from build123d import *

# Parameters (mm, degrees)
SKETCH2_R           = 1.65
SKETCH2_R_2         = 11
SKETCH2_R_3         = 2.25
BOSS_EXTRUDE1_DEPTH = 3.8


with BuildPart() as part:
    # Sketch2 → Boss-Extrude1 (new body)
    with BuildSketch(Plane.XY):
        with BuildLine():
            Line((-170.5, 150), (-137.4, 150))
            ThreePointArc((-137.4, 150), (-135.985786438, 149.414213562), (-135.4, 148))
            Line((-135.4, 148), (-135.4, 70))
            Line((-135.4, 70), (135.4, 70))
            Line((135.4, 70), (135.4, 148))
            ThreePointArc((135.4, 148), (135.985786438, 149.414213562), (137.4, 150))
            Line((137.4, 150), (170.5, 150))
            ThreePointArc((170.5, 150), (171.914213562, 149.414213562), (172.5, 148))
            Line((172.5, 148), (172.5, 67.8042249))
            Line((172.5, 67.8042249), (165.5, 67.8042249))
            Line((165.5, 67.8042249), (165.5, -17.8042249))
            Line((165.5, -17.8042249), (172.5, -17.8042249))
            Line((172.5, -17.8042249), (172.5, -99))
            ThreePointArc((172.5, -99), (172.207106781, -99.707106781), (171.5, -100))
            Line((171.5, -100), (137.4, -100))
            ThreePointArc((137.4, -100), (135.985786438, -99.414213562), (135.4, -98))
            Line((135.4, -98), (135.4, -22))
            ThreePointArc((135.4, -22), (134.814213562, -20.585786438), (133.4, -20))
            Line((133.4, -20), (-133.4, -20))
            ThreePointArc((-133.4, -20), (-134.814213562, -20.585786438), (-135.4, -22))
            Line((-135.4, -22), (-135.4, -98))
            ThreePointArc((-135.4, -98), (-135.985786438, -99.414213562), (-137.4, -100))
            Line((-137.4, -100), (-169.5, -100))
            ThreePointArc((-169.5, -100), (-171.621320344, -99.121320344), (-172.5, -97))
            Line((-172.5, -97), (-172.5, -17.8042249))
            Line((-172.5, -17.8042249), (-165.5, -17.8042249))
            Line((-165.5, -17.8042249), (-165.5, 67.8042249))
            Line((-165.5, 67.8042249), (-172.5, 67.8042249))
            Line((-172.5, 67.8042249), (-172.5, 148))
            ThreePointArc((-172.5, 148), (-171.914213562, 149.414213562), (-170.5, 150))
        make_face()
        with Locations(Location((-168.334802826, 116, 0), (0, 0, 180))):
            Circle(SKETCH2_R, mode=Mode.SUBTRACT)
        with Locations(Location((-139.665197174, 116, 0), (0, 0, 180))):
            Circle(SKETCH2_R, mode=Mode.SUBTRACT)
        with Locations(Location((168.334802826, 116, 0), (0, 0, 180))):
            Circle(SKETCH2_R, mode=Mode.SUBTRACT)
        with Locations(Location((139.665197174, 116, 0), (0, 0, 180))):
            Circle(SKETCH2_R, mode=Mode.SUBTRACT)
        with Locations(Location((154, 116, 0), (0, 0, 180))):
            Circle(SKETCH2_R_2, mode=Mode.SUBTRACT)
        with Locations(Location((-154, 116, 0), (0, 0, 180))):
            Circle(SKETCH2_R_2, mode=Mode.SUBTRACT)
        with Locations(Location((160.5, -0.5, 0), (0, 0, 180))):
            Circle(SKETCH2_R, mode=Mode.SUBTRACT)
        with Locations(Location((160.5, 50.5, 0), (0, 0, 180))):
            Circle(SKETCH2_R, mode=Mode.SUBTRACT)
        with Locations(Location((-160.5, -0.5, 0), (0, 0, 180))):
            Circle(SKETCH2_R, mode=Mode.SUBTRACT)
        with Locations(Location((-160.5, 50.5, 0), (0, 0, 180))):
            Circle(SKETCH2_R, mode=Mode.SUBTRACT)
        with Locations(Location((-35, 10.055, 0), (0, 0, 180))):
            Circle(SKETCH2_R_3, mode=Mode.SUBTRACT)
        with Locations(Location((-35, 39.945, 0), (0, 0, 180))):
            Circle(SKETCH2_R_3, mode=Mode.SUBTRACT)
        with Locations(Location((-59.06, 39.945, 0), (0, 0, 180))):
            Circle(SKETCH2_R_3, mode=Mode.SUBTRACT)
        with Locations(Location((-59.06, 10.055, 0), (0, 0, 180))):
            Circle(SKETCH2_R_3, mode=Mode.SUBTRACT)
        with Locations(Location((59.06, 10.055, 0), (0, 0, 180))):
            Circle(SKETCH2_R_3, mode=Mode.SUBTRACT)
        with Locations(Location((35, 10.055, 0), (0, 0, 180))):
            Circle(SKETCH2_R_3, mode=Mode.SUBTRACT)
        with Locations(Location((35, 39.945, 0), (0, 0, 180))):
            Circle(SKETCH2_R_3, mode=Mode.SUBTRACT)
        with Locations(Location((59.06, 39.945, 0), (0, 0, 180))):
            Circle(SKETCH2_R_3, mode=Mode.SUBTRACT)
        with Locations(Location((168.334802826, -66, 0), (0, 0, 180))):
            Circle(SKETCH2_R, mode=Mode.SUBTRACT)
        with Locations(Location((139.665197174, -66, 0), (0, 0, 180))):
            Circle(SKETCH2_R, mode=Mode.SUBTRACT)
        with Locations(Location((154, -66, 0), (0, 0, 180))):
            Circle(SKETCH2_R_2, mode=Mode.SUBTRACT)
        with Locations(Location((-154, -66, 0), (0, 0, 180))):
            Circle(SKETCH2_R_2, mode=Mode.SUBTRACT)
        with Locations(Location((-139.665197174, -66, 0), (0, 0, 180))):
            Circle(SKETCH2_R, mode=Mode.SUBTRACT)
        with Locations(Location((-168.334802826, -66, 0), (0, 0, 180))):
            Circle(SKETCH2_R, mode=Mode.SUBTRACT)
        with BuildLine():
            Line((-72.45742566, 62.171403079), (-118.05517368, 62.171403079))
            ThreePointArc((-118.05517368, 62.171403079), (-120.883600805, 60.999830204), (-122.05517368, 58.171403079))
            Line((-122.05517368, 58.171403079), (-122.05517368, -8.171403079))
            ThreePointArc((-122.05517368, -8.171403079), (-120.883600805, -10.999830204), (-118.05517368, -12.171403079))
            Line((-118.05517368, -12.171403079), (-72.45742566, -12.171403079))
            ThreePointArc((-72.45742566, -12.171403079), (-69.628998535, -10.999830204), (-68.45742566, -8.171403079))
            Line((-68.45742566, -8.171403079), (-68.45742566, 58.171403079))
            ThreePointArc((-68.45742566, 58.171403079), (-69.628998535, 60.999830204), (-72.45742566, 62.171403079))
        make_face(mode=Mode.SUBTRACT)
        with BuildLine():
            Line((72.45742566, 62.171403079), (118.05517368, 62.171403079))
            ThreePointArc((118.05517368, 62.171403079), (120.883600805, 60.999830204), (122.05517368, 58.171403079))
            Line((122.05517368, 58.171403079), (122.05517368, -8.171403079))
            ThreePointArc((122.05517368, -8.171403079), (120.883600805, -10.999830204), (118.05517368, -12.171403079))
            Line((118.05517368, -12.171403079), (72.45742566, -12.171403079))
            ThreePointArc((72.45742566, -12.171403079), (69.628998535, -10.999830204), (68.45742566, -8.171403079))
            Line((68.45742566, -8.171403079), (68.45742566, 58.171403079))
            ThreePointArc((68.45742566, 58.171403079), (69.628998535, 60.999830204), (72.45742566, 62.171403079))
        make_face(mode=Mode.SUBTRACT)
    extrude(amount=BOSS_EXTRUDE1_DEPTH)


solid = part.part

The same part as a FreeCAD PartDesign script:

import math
import FreeCAD as App
import Part
import Sketcher

doc = App.newDocument("Part")
body = doc.addObject("PartDesign::Body", "Body")

# Sketch on XY plane
sketch1 = body.newObject("Sketcher::SketchObject", "Sketch")
sketch1.AttachmentSupport = (doc.getObject("XY_Plane"), [""])
sketch1.MapMode = "FlatFace"
sketch1.addGeometry([
    Part.LineSegment(App.Vector(-137.4, 150, 0), App.Vector(-170.5, 150, 0)),  # 0
    Part.ArcOfCircle(Part.Circle(App.Vector(-170.5, 148, 0), App.Vector(0, 0, 1), 2), math.radians(90), math.radians(180)),  # 1
    Part.LineSegment(App.Vector(-172.5, 148, 0), App.Vector(-172.5, 67.804225, 0)),  # 2
    Part.LineSegment(App.Vector(-172.5, 67.804225, 0), App.Vector(-165.5, 67.804225, 0)),  # 3
    Part.LineSegment(App.Vector(-165.5, 67.804225, 0), App.Vector(-165.5, -17.804225, 0)),  # 4
    Part.LineSegment(App.Vector(-165.5, -17.804225, 0), App.Vector(-172.5, -17.804225, 0)),  # 5
    Part.LineSegment(App.Vector(-172.5, -17.804225, 0), App.Vector(-172.5, -97, 0)),  # 6
    Part.ArcOfCircle(Part.Circle(App.Vector(-169.5, -97, 0), App.Vector(0, 0, 1), 3), math.radians(180), math.radians(270)),  # 7
    Part.LineSegment(App.Vector(-169.5, -100, 0), App.Vector(-137.4, -100, 0)),  # 8
    Part.ArcOfCircle(Part.Circle(App.Vector(-137.4, -98, 0), App.Vector(0, 0, 1), 2), math.radians(-90), math.radians(0)),  # 9
    Part.LineSegment(App.Vector(-135.4, -98, 0), App.Vector(-135.4, -22, 0)),  # 10
    Part.ArcOfCircle(Part.Circle(App.Vector(-133.4, -22, 0), App.Vector(0, 0, 1), 2), math.radians(90), math.radians(180)),  # 11
    Part.LineSegment(App.Vector(-133.4, -20, 0), App.Vector(133.4, -20, 0)),  # 12
    Part.ArcOfCircle(Part.Circle(App.Vector(133.4, -22, 0), App.Vector(0, 0, 1), 2), math.radians(0), math.radians(90)),  # 13
    Part.LineSegment(App.Vector(135.4, -22, 0), App.Vector(135.4, -98, 0)),  # 14
    Part.ArcOfCircle(Part.Circle(App.Vector(137.4, -98, 0), App.Vector(0, 0, 1), 2), math.radians(-180), math.radians(-90)),  # 15
    Part.LineSegment(App.Vector(137.4, -100, 0), App.Vector(171.5, -100, 0)),  # 16
    Part.ArcOfCircle(Part.Circle(App.Vector(171.5, -99, 0), App.Vector(0, 0, 1), 1), math.radians(-90), math.radians(0)),  # 17
    Part.LineSegment(App.Vector(172.5, -99, 0), App.Vector(172.5, -17.804225, 0)),  # 18
    Part.LineSegment(App.Vector(172.5, -17.804225, 0), App.Vector(165.5, -17.804225, 0)),  # 19
    Part.LineSegment(App.Vector(165.5, -17.804225, 0), App.Vector(165.5, 67.804225, 0)),  # 20
    Part.LineSegment(App.Vector(165.5, 67.804225, 0), App.Vector(172.5, 67.804225, 0)),  # 21
    Part.LineSegment(App.Vector(172.5, 67.804225, 0), App.Vector(172.5, 148, 0)),  # 22
    Part.ArcOfCircle(Part.Circle(App.Vector(170.5, 148, 0), App.Vector(0, 0, 1), 2), math.radians(0), math.radians(90)),  # 23
    Part.LineSegment(App.Vector(170.5, 150, 0), App.Vector(137.4, 150, 0)),  # 24
    Part.ArcOfCircle(Part.Circle(App.Vector(137.4, 148, 0), App.Vector(0, 0, 1), 2), math.radians(90), math.radians(180)),  # 25
    Part.LineSegment(App.Vector(135.4, 148, 0), App.Vector(135.4, 70, 0)),  # 26
    Part.LineSegment(App.Vector(135.4, 70, 0), App.Vector(-135.4, 70, 0)),  # 27
    Part.LineSegment(App.Vector(-135.4, 70, 0), App.Vector(-135.4, 148, 0)),  # 28
    Part.ArcOfCircle(Part.Circle(App.Vector(-137.4, 148, 0), App.Vector(0, 0, 1), 2), math.radians(0), math.radians(90)),  # 29
    Part.Circle(App.Vector(168.334803, -66, 0), App.Vector(0, 0, 1), 1.65),  # 30
    Part.Circle(App.Vector(154, -66, 0), App.Vector(0, 0, 1), 11),  # 31
    Part.Circle(App.Vector(139.665197, -66, 0), App.Vector(0, 0, 1), 1.65),  # 32
    Part.Circle(App.Vector(160.5, -0.5, 0), App.Vector(0, 0, 1), 1.65),  # 33
    Part.Circle(App.Vector(59.06, 10.055, 0), App.Vector(0, 0, 1), 2.25),  # 34
    Part.Circle(App.Vector(35, 10.055, 0), App.Vector(0, 0, 1), 2.25),  # 35
    Part.Circle(App.Vector(-139.665197, -66, 0), App.Vector(0, 0, 1), 1.65),  # 36
    Part.Circle(App.Vector(-154, -66, 0), App.Vector(0, 0, 1), 11),  # 37
    Part.Circle(App.Vector(-168.334803, -66, 0), App.Vector(0, 0, 1), 1.65),  # 38
    Part.Circle(App.Vector(-35, 10.055, 0), App.Vector(0, 0, 1), 2.25),  # 39
    Part.Circle(App.Vector(-59.06, 10.055, 0), App.Vector(0, 0, 1), 2.25),  # 40
    Part.Circle(App.Vector(-160.5, -0.5, 0), App.Vector(0, 0, 1), 1.65),  # 41
    Part.LineSegment(App.Vector(72.457426, 62.171403, 0), App.Vector(118.055174, 62.171403, 0)),  # 42
    Part.ArcOfCircle(Part.Circle(App.Vector(118.055174, 58.171403, 0), App.Vector(0, 0, 1), 4), math.radians(0), math.radians(90)),  # 43
    Part.LineSegment(App.Vector(122.055174, 58.171403, 0), App.Vector(122.055174, -8.171403, 0)),  # 44
    Part.ArcOfCircle(Part.Circle(App.Vector(118.055174, -8.171403, 0), App.Vector(0, 0, 1), 4), math.radians(-90), math.radians(0)),  # 45
    Part.LineSegment(App.Vector(118.055174, -12.171403, 0), App.Vector(72.457426, -12.171403, 0)),  # 46
    Part.ArcOfCircle(Part.Circle(App.Vector(72.457426, -8.171403, 0), App.Vector(0, 0, 1), 4), math.radians(180), math.radians(270)),  # 47
    Part.LineSegment(App.Vector(68.457426, -8.171403, 0), App.Vector(68.457426, 58.171403, 0)),  # 48
    Part.ArcOfCircle(Part.Circle(App.Vector(72.457426, 58.171403, 0), App.Vector(0, 0, 1), 4), math.radians(90), math.radians(180)),  # 49
    Part.Circle(App.Vector(160.5, 50.5, 0), App.Vector(0, 0, 1), 1.65),  # 50
    Part.Circle(App.Vector(59.06, 39.945, 0), App.Vector(0, 0, 1), 2.25),  # 51
    Part.Circle(App.Vector(35, 39.945, 0), App.Vector(0, 0, 1), 2.25),  # 52
    Part.Circle(App.Vector(168.334803, 116, 0), App.Vector(0, 0, 1), 1.65),  # 53
    Part.Circle(App.Vector(154, 116, 0), App.Vector(0, 0, 1), 11),  # 54
    Part.Circle(App.Vector(139.665197, 116, 0), App.Vector(0, 0, 1), 1.65),  # 55
    Part.Circle(App.Vector(-35, 39.945, 0), App.Vector(0, 0, 1), 2.25),  # 56
    Part.Circle(App.Vector(-59.06, 39.945, 0), App.Vector(0, 0, 1), 2.25),  # 57
    Part.ArcOfCircle(Part.Circle(App.Vector(-72.457426, 58.171403, 0), App.Vector(0, 0, 1), 4), math.radians(0), math.radians(90)),  # 58
    Part.LineSegment(App.Vector(-68.457426, 58.171403, 0), App.Vector(-68.457426, -8.171403, 0)),  # 59
    Part.ArcOfCircle(Part.Circle(App.Vector(-72.457426, -8.171403, 0), App.Vector(0, 0, 1), 4), math.radians(-90), math.radians(0)),  # 60
    Part.LineSegment(App.Vector(-72.457426, -12.171403, 0), App.Vector(-118.055174, -12.171403, 0)),  # 61
    Part.ArcOfCircle(Part.Circle(App.Vector(-118.055174, -8.171403, 0), App.Vector(0, 0, 1), 4), math.radians(180), math.radians(270)),  # 62
    Part.LineSegment(App.Vector(-122.055174, -8.171403, 0), App.Vector(-122.055174, 58.171403, 0)),  # 63
    Part.ArcOfCircle(Part.Circle(App.Vector(-118.055174, 58.171403, 0), App.Vector(0, 0, 1), 4), math.radians(90), math.radians(180)),  # 64
    Part.LineSegment(App.Vector(-118.055174, 62.171403, 0), App.Vector(-72.457426, 62.171403, 0)),  # 65
    Part.Circle(App.Vector(-160.5, 50.5, 0), App.Vector(0, 0, 1), 1.65),  # 66
    Part.Circle(App.Vector(-139.665197, 116, 0), App.Vector(0, 0, 1), 1.65),  # 67
    Part.Circle(App.Vector(-154, 116, 0), App.Vector(0, 0, 1), 11),  # 68
    Part.Circle(App.Vector(-168.334803, 116, 0), App.Vector(0, 0, 1), 1.65),  # 69
], False)
sketch1.addConstraint([
    Sketcher.Constraint("Tangent", 0, 2, 1, 1),
    Sketcher.Constraint("Tangent", 1, 2, 2, 1),
    Sketcher.Constraint("Coincident", 2, 2, 3, 1),
    Sketcher.Constraint("Coincident", 3, 2, 4, 1),
    Sketcher.Constraint("Coincident", 4, 2, 5, 1),
    Sketcher.Constraint("Coincident", 5, 2, 6, 1),
    Sketcher.Constraint("Tangent", 6, 2, 7, 1),
    Sketcher.Constraint("Tangent", 7, 2, 8, 1),
    Sketcher.Constraint("Tangent", 8, 2, 9, 1),
    Sketcher.Constraint("Tangent", 9, 2, 10, 1),
    Sketcher.Constraint("Tangent", 10, 2, 11, 2),
    Sketcher.Constraint("Tangent", 11, 1, 12, 1),
    Sketcher.Constraint("Tangent", 12, 2, 13, 2),
    Sketcher.Constraint("Tangent", 13, 1, 14, 1),
    Sketcher.Constraint("Tangent", 14, 2, 15, 1),
    Sketcher.Constraint("Tangent", 15, 2, 16, 1),
    Sketcher.Constraint("Tangent", 16, 2, 17, 1),
    Sketcher.Constraint("Tangent", 17, 2, 18, 1),
    Sketcher.Constraint("Coincident", 18, 2, 19, 1),
    Sketcher.Constraint("Coincident", 19, 2, 20, 1),
    Sketcher.Constraint("Coincident", 20, 2, 21, 1),
    Sketcher.Constraint("Coincident", 21, 2, 22, 1),
    Sketcher.Constraint("Tangent", 22, 2, 23, 1),
    Sketcher.Constraint("Tangent", 23, 2, 24, 1),
    Sketcher.Constraint("Tangent", 24, 2, 25, 1),
    Sketcher.Constraint("Tangent", 25, 2, 26, 1),
    Sketcher.Constraint("Coincident", 26, 2, 27, 1),
    Sketcher.Constraint("Coincident", 27, 2, 28, 1),
    Sketcher.Constraint("Tangent", 28, 2, 29, 1),
    Sketcher.Constraint("Tangent", 29, 2, 0, 1),
    Sketcher.Constraint("Tangent", 42, 2, 43, 2),
    Sketcher.Constraint("Tangent", 43, 1, 44, 1),
    Sketcher.Constraint("Tangent", 44, 2, 45, 2),
    Sketcher.Constraint("Tangent", 45, 1, 46, 1),
    Sketcher.Constraint("Tangent", 46, 2, 47, 2),
    Sketcher.Constraint("Tangent", 47, 1, 48, 1),
    Sketcher.Constraint("Tangent", 48, 2, 49, 2),
    Sketcher.Constraint("Tangent", 49, 1, 42, 1),
    Sketcher.Constraint("Tangent", 58, 1, 59, 1),
    Sketcher.Constraint("Tangent", 59, 2, 60, 2),
    Sketcher.Constraint("Tangent", 60, 1, 61, 1),
    Sketcher.Constraint("Tangent", 61, 2, 62, 2),
    Sketcher.Constraint("Tangent", 62, 1, 63, 1),
    Sketcher.Constraint("Tangent", 63, 2, 64, 2),
    Sketcher.Constraint("Tangent", 64, 1, 65, 1),
    Sketcher.Constraint("Tangent", 65, 2, 58, 2),
    Sketcher.Constraint("Horizontal", 0),
    Sketcher.Constraint("Vertical", 2),
    Sketcher.Constraint("Horizontal", 3),
    Sketcher.Constraint("Vertical", 4),
    Sketcher.Constraint("Horizontal", 5),
    Sketcher.Constraint("Vertical", 6),
    Sketcher.Constraint("Horizontal", 8),
    Sketcher.Constraint("Vertical", 10),
    Sketcher.Constraint("Horizontal", 12),
    Sketcher.Constraint("Vertical", 14),
    Sketcher.Constraint("Horizontal", 16),
    Sketcher.Constraint("Vertical", 18),
    Sketcher.Constraint("Horizontal", 19),
    Sketcher.Constraint("Vertical", 20),
    Sketcher.Constraint("Horizontal", 21),
    Sketcher.Constraint("Vertical", 22),
    Sketcher.Constraint("Horizontal", 24),
    Sketcher.Constraint("Vertical", 26),
    Sketcher.Constraint("Horizontal", 27),
    Sketcher.Constraint("Vertical", 28),
    Sketcher.Constraint("Horizontal", 42),
    Sketcher.Constraint("Vertical", 44),
    Sketcher.Constraint("Horizontal", 46),
    Sketcher.Constraint("Vertical", 48),
    Sketcher.Constraint("Vertical", 59),
    Sketcher.Constraint("Horizontal", 61),
    Sketcher.Constraint("Vertical", 63),
    Sketcher.Constraint("Horizontal", 65),
    Sketcher.Constraint("Equal", 1, 9),
    Sketcher.Constraint("Equal", 9, 11),
    Sketcher.Constraint("Equal", 11, 13),
    Sketcher.Constraint("Equal", 13, 15),
    Sketcher.Constraint("Equal", 15, 23),
    Sketcher.Constraint("Equal", 23, 25),
    Sketcher.Constraint("Equal", 25, 29),
    Sketcher.Constraint("Equal", 30, 32),
    Sketcher.Constraint("Equal", 32, 33),
    Sketcher.Constraint("Equal", 34, 35),
    Sketcher.Constraint("Equal", 33, 36),
    Sketcher.Constraint("Equal", 31, 37),
    Sketcher.Constraint("Equal", 36, 38),
    Sketcher.Constraint("Equal", 35, 39),
    Sketcher.Constraint("Equal", 39, 40),
    Sketcher.Constraint("Equal", 38, 41),
    Sketcher.Constraint("Equal", 43, 45),
    Sketcher.Constraint("Equal", 45, 47),
    Sketcher.Constraint("Equal", 47, 49),
    Sketcher.Constraint("Equal", 41, 50),
    Sketcher.Constraint("Equal", 40, 51),
    Sketcher.Constraint("Equal", 51, 52),
    Sketcher.Constraint("Equal", 50, 53),
    Sketcher.Constraint("Equal", 37, 54),
    Sketcher.Constraint("Equal", 53, 55),
    Sketcher.Constraint("Equal", 52, 56),
    Sketcher.Constraint("Equal", 56, 57),
    Sketcher.Constraint("Equal", 49, 58),
    Sketcher.Constraint("Equal", 58, 60),
    Sketcher.Constraint("Equal", 60, 62),
    Sketcher.Constraint("Equal", 62, 64),
    Sketcher.Constraint("Equal", 55, 66),
    Sketcher.Constraint("Equal", 66, 67),
    Sketcher.Constraint("Equal", 54, 68),
    Sketcher.Constraint("Equal", 67, 69),
    Sketcher.Constraint("Symmetric", 9, 3, 15, 3, -2),
    Sketcher.Constraint("Symmetric", 1, 3, 23, 3, -2),
    Sketcher.Constraint("Symmetric", 32, 3, 36, 3, -2),
    Sketcher.Constraint("Symmetric", 31, 3, 37, 3, -2),
    Sketcher.Constraint("Symmetric", 30, 3, 38, 3, -2),
    Sketcher.Constraint("Symmetric", 35, 3, 39, 3, -2),
    Sketcher.Constraint("Symmetric", 34, 3, 40, 3, -2),
    Sketcher.Constraint("Symmetric", 33, 3, 41, 3, -2),
    Sketcher.Constraint("Symmetric", 52, 3, 56, 3, -2),
    Sketcher.Constraint("Symmetric", 51, 3, 57, 3, -2),
    Sketcher.Constraint("Symmetric", 49, 3, 58, 3, -2),
    Sketcher.Constraint("Symmetric", 45, 3, 62, 3, -2),
    Sketcher.Constraint("Symmetric", 50, 3, 66, 3, -2),
    Sketcher.Constraint("Symmetric", 55, 3, 67, 3, -2),
    Sketcher.Constraint("Symmetric", 54, 3, 68, 3, -2),
    Sketcher.Constraint("Symmetric", 53, 3, 69, 3, -2),
    Sketcher.Constraint("Symmetric", 5, 2, 18, 2, -2),
    Sketcher.Constraint("Symmetric", 3, 2, 20, 2, -2),
    Sketcher.Constraint("Horizontal", 30, 3, 31, 3),
    Sketcher.Constraint("Horizontal", 31, 3, 32, 3),
    Sketcher.Constraint("Horizontal", 34, 3, 35, 3),
    Sketcher.Constraint("Horizontal", 51, 3, 52, 3),
    Sketcher.Constraint("Horizontal", 53, 3, 54, 3),
    Sketcher.Constraint("Horizontal", 54, 3, 55, 3),
    Sketcher.Constraint("Vertical", 15, 3, 25, 3),
    Sketcher.Constraint("Vertical", 9, 3, 29, 3),
    Sketcher.Constraint("Vertical", 33, 3, 50, 3),
    Sketcher.Constraint("Vertical", 34, 3, 51, 3),
    Sketcher.Constraint("Vertical", 35, 3, 52, 3),
    Sketcher.Constraint("Vertical", 30, 3, 53, 3),
    Sketcher.Constraint("Vertical", 31, 3, 54, 3),
    Sketcher.Constraint("Vertical", 32, 3, 55, 3),
    Sketcher.Constraint("Vertical", 2, 2, 5, 2),
    Sketcher.Constraint("Diameter", 31, 22.0),
    Sketcher.Constraint("Radius", 1, 2.0),
    Sketcher.Constraint("Radius", 7, 3.0),
    Sketcher.Constraint("Radius", 17, 1.0),
    Sketcher.Constraint("Radius", 43, 4.0),
    Sketcher.Constraint("Diameter", 30, 3.3),
    Sketcher.Constraint("Diameter", 34, 4.5),
    Sketcher.Constraint("DistanceX", 3, 1, 3, 2, 7.0),
    Sketcher.Constraint("DistanceY", 10, 1, 10, 2, 76.0),
    Sketcher.Constraint("DistanceY", 26, 2, 26, 1, 78.0),
    Sketcher.Constraint("DistanceX", 0, 2, 0, 1, 33.1),
    Sketcher.Constraint("DistanceX", 12, 1, 12, 2, 266.8),
    Sketcher.Constraint("DistanceY", -1, 1, 1, 3, 148.0),
    Sketcher.Constraint("DistanceY", 7, 3, -1, 1, 97.0),
    Sketcher.Constraint("DistanceY", 30, 3, -1, 1, 66.0),
    Sketcher.Constraint("DistanceX", -1, 1, 31, 3, 154.0),
    Sketcher.Constraint("DistanceX", -1, 1, 35, 3, 35.0),
    Sketcher.Constraint("DistanceY", -1, 1, 53, 3, 116.0),
    Sketcher.Constraint("DistanceX", -1, 1, 33, 3, 160.5),
    Sketcher.Constraint("DistanceY", 33, 3, -1, 1, 0.5),
    Sketcher.Constraint("DistanceY", -1, 1, 50, 3, 50.5),
    Sketcher.Constraint("DistanceX", -1, 1, 34, 3, 59.06),
    Sketcher.Constraint("DistanceY", -1, 1, 34, 3, 10.055),
    Sketcher.Constraint("DistanceY", -1, 1, 51, 3, 39.945),
    Sketcher.Constraint("DistanceX", 42, 1, 42, 2, 45.597748),
    Sketcher.Constraint("DistanceY", 4, 2, 4, 1, 85.60845),
    Sketcher.Constraint("DistanceY", 2, 2, 2, 1, 80.195775),
    Sketcher.Constraint("DistanceY", 44, 2, 44, 1, 66.342806),
    Sketcher.Constraint("DistanceX", -1, 1, 30, 3, 168.334803),
    Sketcher.Constraint("DistanceX", -1, 1, 32, 3, 139.665197),
    Sketcher.Constraint("DistanceX", -1, 1, 43, 3, 118.055174),
    Sketcher.Constraint("DistanceY", -1, 1, 43, 3, 58.171403),
])
pad1 = body.newObject("PartDesign::Pad", "Pad")
pad1.Profile = sketch1
pad1.Length = 3.8

doc.recompute()
